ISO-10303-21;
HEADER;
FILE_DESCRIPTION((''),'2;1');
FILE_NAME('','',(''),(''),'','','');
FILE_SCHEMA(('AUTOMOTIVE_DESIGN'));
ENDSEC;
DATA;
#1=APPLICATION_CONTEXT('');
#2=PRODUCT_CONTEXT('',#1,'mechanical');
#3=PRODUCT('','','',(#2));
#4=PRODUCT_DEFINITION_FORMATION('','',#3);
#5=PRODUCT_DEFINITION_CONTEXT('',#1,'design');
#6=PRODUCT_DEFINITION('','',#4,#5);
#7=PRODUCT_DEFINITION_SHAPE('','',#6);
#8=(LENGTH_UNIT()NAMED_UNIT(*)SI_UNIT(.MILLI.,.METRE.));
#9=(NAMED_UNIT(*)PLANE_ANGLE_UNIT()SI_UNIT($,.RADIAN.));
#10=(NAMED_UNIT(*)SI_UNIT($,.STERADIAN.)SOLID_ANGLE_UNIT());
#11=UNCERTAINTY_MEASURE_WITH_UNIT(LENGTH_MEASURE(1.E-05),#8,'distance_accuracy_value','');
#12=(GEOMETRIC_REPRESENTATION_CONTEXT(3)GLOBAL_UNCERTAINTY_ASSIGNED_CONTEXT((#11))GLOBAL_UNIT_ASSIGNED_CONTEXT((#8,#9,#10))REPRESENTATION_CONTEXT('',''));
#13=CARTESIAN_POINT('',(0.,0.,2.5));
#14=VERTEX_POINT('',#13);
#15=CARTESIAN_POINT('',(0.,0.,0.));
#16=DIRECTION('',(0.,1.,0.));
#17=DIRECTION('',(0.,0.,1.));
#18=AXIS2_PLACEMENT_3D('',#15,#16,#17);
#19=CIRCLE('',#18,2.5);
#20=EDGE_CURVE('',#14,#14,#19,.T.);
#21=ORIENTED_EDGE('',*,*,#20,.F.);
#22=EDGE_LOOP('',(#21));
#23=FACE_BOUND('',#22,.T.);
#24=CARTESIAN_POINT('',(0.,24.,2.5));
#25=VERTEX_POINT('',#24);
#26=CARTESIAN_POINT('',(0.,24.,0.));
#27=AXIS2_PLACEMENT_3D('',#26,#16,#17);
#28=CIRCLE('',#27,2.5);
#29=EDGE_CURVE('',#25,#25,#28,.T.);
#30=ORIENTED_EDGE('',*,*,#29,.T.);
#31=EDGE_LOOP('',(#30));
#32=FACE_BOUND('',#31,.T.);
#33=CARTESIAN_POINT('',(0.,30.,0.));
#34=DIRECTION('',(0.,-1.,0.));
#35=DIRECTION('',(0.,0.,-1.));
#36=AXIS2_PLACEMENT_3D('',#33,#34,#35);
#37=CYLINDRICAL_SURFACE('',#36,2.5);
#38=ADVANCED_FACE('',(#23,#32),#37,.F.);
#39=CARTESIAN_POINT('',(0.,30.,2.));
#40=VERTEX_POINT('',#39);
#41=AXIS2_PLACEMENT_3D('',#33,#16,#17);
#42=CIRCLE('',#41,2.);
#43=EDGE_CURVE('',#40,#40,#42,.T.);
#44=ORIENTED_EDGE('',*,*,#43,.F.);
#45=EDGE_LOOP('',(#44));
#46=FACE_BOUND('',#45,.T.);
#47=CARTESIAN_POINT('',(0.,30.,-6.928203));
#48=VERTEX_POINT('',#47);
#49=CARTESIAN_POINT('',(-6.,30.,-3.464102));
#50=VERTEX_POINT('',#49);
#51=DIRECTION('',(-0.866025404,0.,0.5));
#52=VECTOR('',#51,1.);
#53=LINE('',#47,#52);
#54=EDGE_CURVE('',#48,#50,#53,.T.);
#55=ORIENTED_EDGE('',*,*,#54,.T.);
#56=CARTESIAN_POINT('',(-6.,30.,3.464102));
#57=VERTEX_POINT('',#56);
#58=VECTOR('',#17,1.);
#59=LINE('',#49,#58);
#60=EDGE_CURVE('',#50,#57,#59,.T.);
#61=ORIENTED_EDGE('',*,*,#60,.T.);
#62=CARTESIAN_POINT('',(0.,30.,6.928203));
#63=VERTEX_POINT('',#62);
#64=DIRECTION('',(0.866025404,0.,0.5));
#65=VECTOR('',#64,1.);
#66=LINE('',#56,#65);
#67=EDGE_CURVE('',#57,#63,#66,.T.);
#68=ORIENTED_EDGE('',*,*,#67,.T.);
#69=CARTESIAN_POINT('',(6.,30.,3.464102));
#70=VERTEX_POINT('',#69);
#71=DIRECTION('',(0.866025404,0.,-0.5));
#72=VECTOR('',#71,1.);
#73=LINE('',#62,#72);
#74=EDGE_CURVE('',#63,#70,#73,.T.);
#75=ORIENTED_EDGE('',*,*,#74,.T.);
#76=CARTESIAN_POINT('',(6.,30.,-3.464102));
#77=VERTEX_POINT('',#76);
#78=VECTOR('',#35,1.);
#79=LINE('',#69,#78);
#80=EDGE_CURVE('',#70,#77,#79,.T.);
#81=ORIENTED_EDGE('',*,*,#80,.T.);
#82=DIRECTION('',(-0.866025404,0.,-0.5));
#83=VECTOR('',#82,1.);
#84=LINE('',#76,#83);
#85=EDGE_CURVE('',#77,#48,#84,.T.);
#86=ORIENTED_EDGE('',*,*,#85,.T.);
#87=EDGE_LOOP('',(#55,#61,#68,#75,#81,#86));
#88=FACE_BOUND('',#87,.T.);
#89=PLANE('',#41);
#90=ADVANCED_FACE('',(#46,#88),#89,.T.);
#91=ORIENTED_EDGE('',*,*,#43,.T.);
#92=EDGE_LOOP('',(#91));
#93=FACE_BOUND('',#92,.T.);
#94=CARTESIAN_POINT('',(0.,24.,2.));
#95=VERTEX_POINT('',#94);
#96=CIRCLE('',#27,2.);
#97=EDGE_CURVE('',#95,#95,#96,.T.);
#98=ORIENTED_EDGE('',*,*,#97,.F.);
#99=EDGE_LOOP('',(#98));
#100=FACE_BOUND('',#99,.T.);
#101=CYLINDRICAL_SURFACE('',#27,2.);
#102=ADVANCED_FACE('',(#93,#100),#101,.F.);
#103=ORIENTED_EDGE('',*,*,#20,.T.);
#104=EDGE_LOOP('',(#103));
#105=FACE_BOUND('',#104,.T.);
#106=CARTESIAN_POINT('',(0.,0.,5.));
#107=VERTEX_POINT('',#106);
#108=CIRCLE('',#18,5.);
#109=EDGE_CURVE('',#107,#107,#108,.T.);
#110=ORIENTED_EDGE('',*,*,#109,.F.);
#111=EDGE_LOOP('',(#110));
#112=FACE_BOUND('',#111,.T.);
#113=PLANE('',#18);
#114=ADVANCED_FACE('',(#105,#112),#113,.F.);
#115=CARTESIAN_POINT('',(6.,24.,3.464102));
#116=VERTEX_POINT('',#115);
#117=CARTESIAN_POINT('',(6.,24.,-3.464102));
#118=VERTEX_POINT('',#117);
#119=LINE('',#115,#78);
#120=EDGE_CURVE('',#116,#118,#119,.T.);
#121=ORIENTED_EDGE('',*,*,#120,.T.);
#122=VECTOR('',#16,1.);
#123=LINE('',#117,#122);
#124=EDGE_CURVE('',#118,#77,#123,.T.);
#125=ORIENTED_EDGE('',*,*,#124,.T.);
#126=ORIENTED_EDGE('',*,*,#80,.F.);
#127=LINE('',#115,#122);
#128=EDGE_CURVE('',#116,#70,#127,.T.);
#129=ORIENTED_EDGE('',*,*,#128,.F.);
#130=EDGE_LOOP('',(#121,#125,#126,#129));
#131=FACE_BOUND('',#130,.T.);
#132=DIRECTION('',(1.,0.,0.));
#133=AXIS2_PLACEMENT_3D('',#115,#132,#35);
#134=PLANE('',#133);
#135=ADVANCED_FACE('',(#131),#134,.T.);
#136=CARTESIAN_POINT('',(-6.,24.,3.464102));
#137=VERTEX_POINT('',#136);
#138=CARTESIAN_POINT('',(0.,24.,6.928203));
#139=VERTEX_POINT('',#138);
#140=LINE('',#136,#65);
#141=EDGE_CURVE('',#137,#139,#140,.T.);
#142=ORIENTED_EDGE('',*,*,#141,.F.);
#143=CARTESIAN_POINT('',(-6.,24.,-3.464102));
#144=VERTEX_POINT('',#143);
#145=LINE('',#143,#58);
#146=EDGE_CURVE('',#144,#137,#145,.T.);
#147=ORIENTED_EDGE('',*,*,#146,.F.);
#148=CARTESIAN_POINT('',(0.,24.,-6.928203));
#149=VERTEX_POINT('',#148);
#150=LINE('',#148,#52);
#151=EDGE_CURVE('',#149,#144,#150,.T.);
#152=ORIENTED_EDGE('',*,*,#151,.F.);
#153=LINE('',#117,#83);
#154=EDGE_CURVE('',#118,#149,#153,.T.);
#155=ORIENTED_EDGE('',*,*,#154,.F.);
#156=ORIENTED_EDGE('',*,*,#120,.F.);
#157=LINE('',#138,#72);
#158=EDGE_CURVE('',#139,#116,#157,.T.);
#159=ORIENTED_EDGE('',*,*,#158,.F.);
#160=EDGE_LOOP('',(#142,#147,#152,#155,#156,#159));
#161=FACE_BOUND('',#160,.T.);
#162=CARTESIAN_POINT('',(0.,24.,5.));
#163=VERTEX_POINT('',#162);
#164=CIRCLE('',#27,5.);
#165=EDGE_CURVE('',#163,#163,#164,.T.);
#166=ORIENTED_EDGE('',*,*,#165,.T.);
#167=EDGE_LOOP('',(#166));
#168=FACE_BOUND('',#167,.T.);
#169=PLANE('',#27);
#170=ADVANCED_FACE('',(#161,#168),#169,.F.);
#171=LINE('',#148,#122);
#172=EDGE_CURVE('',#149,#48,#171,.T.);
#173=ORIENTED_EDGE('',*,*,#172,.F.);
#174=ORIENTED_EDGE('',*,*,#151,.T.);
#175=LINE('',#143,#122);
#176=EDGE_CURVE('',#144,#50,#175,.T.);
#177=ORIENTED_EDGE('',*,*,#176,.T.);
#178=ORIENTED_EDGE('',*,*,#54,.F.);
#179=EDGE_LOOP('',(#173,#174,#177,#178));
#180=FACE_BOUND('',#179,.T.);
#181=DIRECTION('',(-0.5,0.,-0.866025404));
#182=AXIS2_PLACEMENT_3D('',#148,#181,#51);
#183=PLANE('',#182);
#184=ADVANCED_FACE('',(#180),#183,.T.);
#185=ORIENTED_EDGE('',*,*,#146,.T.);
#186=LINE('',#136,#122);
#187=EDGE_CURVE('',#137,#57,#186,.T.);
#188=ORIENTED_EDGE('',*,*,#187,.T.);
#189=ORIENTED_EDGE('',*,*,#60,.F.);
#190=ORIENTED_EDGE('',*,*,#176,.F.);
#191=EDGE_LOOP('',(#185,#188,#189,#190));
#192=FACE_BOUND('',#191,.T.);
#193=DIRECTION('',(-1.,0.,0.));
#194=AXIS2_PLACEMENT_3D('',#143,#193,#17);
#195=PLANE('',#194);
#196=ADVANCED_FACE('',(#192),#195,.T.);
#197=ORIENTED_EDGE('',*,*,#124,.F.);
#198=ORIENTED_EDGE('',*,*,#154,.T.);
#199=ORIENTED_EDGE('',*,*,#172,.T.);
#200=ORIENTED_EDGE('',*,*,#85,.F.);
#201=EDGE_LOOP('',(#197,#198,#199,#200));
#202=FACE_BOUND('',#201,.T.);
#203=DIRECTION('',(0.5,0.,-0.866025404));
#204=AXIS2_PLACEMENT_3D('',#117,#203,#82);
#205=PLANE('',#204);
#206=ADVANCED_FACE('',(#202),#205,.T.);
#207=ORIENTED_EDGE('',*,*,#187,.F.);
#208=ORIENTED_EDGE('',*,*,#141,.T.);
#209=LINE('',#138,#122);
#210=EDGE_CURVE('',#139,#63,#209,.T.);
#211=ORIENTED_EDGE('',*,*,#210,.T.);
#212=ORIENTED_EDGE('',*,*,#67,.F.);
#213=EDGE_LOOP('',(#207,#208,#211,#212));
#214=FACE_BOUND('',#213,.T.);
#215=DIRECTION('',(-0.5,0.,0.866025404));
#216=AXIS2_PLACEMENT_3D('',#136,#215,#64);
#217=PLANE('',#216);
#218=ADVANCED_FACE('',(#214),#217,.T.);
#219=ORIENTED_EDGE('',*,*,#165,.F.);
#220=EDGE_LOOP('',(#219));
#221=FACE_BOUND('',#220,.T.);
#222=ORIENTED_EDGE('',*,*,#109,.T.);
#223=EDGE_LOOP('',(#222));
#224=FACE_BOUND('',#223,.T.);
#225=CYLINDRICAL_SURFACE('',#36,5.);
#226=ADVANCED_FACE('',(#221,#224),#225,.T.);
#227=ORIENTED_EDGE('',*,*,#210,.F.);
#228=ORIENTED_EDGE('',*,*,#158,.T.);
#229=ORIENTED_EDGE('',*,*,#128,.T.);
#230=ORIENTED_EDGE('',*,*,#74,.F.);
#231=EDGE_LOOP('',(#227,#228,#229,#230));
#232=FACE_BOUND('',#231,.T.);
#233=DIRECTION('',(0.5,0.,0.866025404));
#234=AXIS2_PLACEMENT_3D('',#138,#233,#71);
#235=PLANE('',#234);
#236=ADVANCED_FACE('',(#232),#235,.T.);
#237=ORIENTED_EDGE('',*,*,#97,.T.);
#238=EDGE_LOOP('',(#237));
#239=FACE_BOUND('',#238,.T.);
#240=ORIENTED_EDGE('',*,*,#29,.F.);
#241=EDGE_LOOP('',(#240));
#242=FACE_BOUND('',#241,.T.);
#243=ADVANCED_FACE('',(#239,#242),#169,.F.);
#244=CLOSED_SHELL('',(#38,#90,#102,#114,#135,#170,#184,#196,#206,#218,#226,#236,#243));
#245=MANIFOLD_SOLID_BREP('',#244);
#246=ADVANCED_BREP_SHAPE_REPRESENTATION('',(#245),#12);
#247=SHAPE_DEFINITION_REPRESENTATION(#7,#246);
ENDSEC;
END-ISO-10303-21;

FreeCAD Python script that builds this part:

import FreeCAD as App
import Part
import Sketcher
Q = App.Units.Quantity


def add_polygon(sketch, points):
    """Adds a closed chain of lines whose ends are joined by coincident constraints."""
    first, n = sketch.GeometryCount, len(points)
    for a, b in zip(points, points[1:] + points[:1]):
        sketch.addGeometry(Part.LineSegment(App.Vector(*a, 0), App.Vector(*b, 0)), False)
    for i in range(n):
        sketch.addConstraint(Sketcher.Constraint("Coincident", first + i, 2, first + (i + 1) % n, 1))

doc = App.newDocument("Part")
body = doc.addObject("PartDesign::Body", "Body")

sketch1 = body.newObject("Sketcher::SketchObject", "Sketch")
sketch1.AttachmentSupport = (doc.getObject("XZ_Plane"), [""])
sketch1.MapMode = "FlatFace"
sketch1.addGeometry([
    Part.Circle(App.Vector(0, 0, 0), App.Vector(0, 0, 1), 5),
    Part.Circle(App.Vector(0, 0, 0), App.Vector(0, 0, 1), 2.5),
], False)
sketch1.addConstraint([
    Sketcher.Constraint("Coincident", 0, 3, -1, 1),
    Sketcher.Constraint("Coincident", 1, 3, -1, 1),
    Sketcher.Constraint("Diameter", 0, Q("10 mm")),
    Sketcher.Constraint("Diameter", 1, Q("5 mm")),
])
pad1 = body.newObject("PartDesign::Pad", "Pad")
pad1.Profile = sketch1
pad1.Length = 30
pad1.Reversed = True

sketch2 = body.newObject("Sketcher::SketchObject", "Sketch001")
sketch2.AttachmentSupport = (doc.getObject("XZ_Plane"), [""])
sketch2.MapMode = "FlatFace"
sketch2.AttachmentOffset = App.Placement(App.Vector(0, 0, -30), App.Rotation())
add_polygon(sketch2, [(0, -6.9), (-6, -3.5), (-6, 3.5), (0, 6.9), (6, 3.5), (6, -3.5)])
sketch2.addGeometry(Part.Circle(App.Vector(0, 0, 0), App.Vector(0, 0, 1), 2), False)
sketch2.addConstraint([
    Sketcher.Constraint("Vertical", 1),
    Sketcher.Constraint("Vertical", 4),
    Sketcher.Constraint("Coincident", 6, 3, -1, 1),
    Sketcher.Constraint("Symmetric", 0, 2, 3, 2, -1, 1),
    Sketcher.Constraint("Symmetric", 2, 2, 5, 2, -1, 1),
    Sketcher.Constraint("PointOnObject", 2, 2, -2),
    Sketcher.Constraint("Parallel", 2, 5),
    Sketcher.Constraint("Horizontal", 1, 2, 3, 2),
    Sketcher.Constraint("Diameter", 6, Q("4 mm")),
    Sketcher.Constraint("Angle", 0, Q("150 deg")),
    Sketcher.Constraint("DistanceX", 0, 2, -1, 1, Q("6 mm")),
    Sketcher.Constraint("DistanceY", 0, 2, -1, 1, Q("3.464102 mm")),
])
pad2 = body.newObject("PartDesign::Pad", "Pad001")
pad2.Profile = sketch2
pad2.Length = 6

doc.recompute()
